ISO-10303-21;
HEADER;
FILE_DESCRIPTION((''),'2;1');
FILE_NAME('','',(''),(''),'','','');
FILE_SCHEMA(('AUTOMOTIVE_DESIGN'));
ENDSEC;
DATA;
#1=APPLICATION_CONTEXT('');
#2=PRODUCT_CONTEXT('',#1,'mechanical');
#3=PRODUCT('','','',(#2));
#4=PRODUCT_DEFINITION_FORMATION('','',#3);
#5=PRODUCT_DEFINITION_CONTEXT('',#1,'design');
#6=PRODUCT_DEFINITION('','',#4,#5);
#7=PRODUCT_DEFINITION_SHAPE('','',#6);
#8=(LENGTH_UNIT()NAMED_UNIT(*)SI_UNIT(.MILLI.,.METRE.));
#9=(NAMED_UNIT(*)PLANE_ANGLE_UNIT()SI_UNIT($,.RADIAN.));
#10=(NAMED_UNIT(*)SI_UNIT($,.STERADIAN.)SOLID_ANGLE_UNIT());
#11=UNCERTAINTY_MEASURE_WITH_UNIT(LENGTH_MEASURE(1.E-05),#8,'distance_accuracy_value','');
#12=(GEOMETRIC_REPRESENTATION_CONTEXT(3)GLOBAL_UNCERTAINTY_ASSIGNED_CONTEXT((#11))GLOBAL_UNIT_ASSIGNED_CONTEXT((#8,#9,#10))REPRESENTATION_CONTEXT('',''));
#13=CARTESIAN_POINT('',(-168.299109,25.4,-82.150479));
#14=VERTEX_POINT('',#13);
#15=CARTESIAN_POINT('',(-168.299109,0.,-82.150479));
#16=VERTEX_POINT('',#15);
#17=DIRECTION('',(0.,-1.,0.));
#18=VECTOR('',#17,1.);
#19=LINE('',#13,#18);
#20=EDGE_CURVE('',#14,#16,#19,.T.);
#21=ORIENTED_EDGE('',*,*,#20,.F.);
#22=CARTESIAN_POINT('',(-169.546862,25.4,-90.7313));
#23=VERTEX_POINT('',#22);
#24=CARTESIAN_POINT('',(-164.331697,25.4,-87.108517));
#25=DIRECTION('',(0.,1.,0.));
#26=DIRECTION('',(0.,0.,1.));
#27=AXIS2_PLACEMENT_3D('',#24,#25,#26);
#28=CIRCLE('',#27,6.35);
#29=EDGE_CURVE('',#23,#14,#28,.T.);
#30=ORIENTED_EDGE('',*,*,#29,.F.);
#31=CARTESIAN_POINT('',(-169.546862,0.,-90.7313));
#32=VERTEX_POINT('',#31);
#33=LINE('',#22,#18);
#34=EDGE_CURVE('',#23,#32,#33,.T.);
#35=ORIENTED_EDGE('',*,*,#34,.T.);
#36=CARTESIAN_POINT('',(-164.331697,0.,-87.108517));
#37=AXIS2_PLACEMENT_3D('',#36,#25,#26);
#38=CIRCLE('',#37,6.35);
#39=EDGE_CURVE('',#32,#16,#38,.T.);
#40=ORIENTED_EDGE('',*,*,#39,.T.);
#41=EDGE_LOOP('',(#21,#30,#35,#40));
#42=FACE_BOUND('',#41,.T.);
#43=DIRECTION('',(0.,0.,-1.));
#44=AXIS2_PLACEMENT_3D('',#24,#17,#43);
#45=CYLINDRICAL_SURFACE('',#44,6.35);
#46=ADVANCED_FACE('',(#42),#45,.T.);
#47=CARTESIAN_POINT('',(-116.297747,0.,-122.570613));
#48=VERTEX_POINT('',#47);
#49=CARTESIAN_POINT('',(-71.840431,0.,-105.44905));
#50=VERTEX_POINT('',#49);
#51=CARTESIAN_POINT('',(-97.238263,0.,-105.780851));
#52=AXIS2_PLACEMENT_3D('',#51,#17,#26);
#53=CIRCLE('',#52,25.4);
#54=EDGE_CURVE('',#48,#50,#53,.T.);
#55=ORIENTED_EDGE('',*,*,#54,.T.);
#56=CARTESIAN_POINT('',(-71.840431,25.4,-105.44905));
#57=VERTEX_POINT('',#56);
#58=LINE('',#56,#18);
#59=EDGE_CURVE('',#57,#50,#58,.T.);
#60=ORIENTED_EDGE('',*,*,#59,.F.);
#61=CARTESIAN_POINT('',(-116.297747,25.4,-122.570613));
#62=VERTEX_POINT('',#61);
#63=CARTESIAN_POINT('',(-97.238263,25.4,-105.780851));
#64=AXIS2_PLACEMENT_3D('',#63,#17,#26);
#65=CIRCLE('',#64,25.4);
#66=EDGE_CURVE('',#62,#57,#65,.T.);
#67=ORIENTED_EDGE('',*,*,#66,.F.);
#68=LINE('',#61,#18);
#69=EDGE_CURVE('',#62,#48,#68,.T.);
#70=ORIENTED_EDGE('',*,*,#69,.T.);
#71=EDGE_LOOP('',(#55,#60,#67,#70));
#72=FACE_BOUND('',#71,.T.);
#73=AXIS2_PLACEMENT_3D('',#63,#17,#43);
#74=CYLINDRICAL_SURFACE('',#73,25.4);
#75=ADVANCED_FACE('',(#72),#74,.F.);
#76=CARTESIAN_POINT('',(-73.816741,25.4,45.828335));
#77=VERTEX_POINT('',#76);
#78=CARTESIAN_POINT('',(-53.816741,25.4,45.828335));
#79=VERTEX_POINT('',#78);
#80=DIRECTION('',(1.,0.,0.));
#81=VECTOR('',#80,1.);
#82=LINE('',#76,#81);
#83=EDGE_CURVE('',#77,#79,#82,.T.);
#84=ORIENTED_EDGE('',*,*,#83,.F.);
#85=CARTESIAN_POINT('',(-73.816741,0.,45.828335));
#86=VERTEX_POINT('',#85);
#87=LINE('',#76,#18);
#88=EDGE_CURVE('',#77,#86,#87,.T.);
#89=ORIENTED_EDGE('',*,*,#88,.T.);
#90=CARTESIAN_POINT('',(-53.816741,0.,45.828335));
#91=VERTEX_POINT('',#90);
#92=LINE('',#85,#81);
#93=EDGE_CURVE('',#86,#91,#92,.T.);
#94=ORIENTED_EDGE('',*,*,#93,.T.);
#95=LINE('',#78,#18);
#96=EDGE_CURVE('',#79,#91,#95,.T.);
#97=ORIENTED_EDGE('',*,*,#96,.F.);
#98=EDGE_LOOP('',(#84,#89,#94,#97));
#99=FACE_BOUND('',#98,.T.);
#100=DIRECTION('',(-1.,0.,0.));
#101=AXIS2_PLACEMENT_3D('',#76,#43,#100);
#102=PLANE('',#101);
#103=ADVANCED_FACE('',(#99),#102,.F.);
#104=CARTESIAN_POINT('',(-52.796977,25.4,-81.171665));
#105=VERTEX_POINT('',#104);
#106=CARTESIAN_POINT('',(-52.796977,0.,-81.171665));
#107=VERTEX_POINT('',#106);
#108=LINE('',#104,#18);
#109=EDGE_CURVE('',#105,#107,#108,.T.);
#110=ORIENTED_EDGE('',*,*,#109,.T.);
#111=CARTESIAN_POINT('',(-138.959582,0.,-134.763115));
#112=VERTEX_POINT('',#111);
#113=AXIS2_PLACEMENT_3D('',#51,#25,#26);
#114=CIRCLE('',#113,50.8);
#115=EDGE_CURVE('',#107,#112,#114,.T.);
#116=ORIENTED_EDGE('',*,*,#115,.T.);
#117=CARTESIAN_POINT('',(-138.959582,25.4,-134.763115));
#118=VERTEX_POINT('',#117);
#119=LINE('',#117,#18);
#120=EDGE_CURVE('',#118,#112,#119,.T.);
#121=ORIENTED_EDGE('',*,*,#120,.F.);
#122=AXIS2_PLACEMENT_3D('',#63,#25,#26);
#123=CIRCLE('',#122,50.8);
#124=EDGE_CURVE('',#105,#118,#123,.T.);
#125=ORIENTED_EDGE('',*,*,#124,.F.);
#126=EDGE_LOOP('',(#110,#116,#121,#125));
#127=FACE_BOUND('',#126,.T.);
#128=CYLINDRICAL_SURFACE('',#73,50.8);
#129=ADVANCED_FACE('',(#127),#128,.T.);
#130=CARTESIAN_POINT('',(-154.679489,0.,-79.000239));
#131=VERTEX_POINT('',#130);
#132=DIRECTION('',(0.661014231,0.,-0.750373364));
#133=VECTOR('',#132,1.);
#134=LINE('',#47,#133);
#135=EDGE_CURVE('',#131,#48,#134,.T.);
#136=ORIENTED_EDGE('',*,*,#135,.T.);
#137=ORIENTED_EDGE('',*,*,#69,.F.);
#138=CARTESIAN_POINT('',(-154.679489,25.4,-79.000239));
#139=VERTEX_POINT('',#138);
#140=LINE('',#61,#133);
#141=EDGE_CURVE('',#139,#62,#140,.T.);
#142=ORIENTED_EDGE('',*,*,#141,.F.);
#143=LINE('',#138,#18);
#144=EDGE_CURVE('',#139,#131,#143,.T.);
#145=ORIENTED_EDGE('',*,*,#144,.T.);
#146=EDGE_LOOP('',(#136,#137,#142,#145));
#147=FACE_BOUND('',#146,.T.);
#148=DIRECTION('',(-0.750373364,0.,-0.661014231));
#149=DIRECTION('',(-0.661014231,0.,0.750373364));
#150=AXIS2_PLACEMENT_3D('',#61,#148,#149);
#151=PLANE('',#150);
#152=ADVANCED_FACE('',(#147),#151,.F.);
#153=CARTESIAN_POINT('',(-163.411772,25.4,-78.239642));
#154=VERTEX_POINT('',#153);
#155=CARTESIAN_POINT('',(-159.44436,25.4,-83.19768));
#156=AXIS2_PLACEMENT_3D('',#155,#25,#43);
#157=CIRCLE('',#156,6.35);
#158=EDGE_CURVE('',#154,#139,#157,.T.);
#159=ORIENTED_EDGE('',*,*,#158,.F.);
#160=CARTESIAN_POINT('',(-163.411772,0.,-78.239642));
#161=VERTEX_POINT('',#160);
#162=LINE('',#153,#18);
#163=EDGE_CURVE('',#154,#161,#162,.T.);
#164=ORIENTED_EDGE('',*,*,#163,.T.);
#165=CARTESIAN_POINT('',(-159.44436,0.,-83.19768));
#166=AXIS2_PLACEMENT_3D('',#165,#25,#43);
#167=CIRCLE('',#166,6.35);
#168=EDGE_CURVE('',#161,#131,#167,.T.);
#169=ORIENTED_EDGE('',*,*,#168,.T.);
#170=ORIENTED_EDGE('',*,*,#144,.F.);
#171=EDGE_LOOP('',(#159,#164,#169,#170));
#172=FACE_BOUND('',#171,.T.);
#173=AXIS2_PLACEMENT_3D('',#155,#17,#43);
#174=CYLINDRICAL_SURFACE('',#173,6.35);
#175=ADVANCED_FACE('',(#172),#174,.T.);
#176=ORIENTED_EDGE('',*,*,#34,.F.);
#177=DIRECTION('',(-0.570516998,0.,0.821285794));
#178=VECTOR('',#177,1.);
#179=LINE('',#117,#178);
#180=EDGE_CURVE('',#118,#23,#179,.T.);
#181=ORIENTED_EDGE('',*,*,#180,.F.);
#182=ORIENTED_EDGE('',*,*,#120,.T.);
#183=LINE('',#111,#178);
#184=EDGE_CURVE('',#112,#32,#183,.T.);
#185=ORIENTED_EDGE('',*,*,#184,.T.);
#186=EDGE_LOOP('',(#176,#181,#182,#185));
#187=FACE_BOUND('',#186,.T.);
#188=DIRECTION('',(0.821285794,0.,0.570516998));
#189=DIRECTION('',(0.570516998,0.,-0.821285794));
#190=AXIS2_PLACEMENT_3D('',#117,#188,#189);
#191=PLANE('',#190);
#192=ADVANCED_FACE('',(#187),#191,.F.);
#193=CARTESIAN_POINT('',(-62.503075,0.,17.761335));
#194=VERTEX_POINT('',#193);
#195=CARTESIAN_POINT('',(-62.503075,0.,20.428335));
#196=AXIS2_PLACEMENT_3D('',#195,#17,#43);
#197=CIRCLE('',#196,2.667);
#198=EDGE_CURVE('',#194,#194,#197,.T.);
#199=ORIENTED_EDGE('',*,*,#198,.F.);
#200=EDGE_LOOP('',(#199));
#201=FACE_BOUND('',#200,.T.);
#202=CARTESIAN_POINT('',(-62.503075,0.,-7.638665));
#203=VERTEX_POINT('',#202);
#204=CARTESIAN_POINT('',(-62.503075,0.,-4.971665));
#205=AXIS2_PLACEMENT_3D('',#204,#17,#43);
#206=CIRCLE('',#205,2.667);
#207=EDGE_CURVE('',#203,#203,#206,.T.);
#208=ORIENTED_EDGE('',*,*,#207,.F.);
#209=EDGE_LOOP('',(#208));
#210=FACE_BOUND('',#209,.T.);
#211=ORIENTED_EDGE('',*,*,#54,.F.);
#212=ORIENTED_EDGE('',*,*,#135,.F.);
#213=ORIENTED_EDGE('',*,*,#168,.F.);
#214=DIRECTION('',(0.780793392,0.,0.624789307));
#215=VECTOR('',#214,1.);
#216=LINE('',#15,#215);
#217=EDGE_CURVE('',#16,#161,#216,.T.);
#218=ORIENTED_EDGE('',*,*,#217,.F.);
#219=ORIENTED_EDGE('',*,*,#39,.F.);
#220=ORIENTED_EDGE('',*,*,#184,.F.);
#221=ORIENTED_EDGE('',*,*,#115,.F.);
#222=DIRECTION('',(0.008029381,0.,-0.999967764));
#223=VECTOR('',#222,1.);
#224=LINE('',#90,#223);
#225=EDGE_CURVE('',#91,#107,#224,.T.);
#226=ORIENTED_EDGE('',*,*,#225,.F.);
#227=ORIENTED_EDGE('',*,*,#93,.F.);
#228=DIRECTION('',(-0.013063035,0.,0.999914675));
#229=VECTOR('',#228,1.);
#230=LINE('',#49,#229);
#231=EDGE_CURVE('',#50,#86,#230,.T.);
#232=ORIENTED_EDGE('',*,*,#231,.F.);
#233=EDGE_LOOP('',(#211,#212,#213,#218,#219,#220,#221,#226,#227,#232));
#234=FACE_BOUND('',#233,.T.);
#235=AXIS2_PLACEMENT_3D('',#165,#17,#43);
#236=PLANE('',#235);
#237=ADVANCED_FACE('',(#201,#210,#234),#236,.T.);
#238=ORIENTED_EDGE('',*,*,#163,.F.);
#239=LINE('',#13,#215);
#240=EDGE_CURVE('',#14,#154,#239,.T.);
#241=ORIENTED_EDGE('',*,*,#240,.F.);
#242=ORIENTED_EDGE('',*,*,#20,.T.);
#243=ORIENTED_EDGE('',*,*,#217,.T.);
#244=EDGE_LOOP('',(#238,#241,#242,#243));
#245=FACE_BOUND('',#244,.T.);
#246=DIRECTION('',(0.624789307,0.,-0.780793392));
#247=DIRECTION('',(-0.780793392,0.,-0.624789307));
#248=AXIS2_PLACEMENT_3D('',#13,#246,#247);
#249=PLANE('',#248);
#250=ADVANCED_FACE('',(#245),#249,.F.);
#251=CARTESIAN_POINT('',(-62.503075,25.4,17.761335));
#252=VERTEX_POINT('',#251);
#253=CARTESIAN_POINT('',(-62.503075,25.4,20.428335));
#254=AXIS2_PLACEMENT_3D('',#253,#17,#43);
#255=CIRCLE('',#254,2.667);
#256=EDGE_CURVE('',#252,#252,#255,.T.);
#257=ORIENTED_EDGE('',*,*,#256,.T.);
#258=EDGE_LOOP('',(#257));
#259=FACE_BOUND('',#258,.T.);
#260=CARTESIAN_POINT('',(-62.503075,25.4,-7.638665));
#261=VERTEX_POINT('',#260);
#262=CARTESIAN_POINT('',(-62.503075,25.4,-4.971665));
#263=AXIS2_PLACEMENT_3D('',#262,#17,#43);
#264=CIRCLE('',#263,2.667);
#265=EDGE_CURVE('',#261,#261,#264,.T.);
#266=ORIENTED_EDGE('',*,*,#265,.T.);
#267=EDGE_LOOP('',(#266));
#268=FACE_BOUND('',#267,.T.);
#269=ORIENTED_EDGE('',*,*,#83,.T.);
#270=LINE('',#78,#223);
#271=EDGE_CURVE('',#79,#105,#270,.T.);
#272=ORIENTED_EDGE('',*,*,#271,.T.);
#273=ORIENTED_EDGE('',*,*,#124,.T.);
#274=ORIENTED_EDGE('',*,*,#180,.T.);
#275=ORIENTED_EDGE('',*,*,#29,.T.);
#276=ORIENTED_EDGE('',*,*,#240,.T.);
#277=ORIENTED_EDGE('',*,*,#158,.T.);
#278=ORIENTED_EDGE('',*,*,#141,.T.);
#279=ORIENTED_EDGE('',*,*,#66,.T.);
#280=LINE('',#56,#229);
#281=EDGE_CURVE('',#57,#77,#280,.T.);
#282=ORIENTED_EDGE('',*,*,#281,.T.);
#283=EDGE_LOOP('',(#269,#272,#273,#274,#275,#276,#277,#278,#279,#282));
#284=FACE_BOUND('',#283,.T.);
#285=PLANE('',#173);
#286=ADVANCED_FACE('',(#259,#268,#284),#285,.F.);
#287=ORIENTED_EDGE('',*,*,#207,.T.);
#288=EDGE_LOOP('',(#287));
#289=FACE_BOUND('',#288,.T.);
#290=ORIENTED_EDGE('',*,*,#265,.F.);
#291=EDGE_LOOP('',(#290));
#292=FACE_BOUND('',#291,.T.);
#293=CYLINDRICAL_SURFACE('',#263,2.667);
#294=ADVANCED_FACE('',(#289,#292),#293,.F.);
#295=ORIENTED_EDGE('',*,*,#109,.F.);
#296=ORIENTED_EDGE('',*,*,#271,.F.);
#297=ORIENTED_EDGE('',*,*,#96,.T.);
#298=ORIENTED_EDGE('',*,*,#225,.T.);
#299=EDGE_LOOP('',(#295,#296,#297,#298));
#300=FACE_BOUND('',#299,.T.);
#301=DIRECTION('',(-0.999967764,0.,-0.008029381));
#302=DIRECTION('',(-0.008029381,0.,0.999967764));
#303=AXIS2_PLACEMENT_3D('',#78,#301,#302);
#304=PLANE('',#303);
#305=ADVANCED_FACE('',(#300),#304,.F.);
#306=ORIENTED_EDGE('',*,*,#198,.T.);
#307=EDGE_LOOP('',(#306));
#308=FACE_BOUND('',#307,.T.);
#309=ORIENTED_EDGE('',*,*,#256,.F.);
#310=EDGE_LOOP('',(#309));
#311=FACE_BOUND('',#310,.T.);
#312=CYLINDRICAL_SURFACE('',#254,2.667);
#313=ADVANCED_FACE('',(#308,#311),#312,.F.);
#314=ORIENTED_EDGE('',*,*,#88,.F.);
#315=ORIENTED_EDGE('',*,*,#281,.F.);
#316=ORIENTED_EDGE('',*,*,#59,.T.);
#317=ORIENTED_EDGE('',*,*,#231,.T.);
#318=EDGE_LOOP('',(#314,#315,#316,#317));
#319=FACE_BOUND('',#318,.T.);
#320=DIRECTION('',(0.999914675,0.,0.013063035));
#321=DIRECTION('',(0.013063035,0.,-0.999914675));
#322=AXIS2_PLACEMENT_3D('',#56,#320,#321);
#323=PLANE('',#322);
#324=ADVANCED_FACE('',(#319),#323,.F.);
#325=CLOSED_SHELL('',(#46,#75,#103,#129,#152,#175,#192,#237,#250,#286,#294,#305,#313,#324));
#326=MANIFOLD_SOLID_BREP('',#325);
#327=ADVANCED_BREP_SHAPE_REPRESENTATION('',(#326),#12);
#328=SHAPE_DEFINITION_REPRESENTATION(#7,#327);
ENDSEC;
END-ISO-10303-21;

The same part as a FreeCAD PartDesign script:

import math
import FreeCAD as App
import Part
import Sketcher

V = App.Vector
Q = App.Units.Quantity

doc = App.newDocument("Part")
body = doc.addObject("PartDesign::Body", "Body")

sketch1 = doc.addObject("Sketcher::SketchObject", "Sketch")
body.addObject(sketch1)
sketch1.AttachmentSupport = (doc.XZ_Plane, [""])
sketch1.MapMode = "FlatFace"
sketch1.addGeometry(Part.LineSegment(V(-74, 46, 0), V(-54, 46, 0)), False)
sketch1.addGeometry(Part.LineSegment(V(-54, 46, 0), V(-53, -81, 0)), False)
sketch1.addGeometry(Part.ArcOfCircle(Part.Circle(V(-97, -106, 0), V(0, 0, 1), 51), math.radians(-145), math.radians(29)), False)
sketch1.addGeometry(Part.LineSegment(V(-139, -135, 0), V(-170, -91, 0)), False)
sketch1.addGeometry(Part.ArcOfCircle(Part.Circle(V(-164, -87, 0), V(0, 0, 1), 6), math.radians(129), math.radians(215)), False)
sketch1.addGeometry(Part.LineSegment(V(-168, -82, 0), V(-163, -78, 0)), False)
sketch1.addGeometry(Part.ArcOfCircle(Part.Circle(V(-159, -83, 0), V(0, 0, 1), 6), math.radians(41), math.radians(129)), False)
sketch1.addGeometry(Part.LineSegment(V(-155, -79, 0), V(-116, -123, 0)), False)
sketch1.addGeometry(Part.ArcOfCircle(Part.Circle(V(-97, -106, 0), V(0, 0, 1), 25), math.radians(-139), math.radians(1)), False)
sketch1.addGeometry(Part.LineSegment(V(-72, -105, 0), V(-74, 46, 0)), False)
sketch1.addConstraint(Sketcher.Constraint("Coincident", 0, 2, 1, 1))
sketch1.addConstraint(Sketcher.Constraint("Coincident", 1, 2, 2, 2))
sketch1.addConstraint(Sketcher.Constraint("Tangent", 2, 1, 3, 1))
sketch1.addConstraint(Sketcher.Constraint("Tangent", 3, 2, 4, 2))
sketch1.addConstraint(Sketcher.Constraint("Tangent", 4, 1, 5, 1))
sketch1.addConstraint(Sketcher.Constraint("Tangent", 5, 2, 6, 2))
sketch1.addConstraint(Sketcher.Constraint("Tangent", 6, 1, 7, 1))
sketch1.addConstraint(Sketcher.Constraint("Tangent", 7, 2, 8, 1))
sketch1.addConstraint(Sketcher.Constraint("Tangent", 8, 2, 9, 1))
sketch1.addConstraint(Sketcher.Constraint("Coincident", 9, 2, 0, 1))
sketch1.addConstraint(Sketcher.Constraint("Horizontal", 0))
sketch1.addConstraint(Sketcher.Constraint("Coincident", 8, 3, 2, 3))
sketch1.addConstraint(Sketcher.Constraint("Equal", 4, 6))
sketch1.addConstraint(Sketcher.Constraint("Radius", 2, Q("2 in")))
sketch1.addConstraint(Sketcher.Constraint("Radius", 8, Q("1 in")))
sketch1.addConstraint(Sketcher.Constraint("Radius", 4, Q("0.25 in")))
sketch1.addConstraint(Sketcher.Constraint("DistanceY", 1, 2, 0, 2, Q("5 in")))
sketch1.addConstraint(Sketcher.Constraint("DistanceX", 0, 1, 0, 2, 20.0))
sketch1.addConstraint(Sketcher.Constraint("DistanceY", 3, 2, -1, 1, 90.7313))
sketch1.addConstraint(Sketcher.Constraint("DistanceX", 3, 2, 2, 3, 72.308598))
sketch1.addConstraint(Sketcher.Constraint("DistanceY", 6, 3, 4, 1, 1.0472))
sketch1.addConstraint(Sketcher.Constraint("DistanceY", 8, 3, 8, 2, 0.331801))
sketch1.addConstraint(Sketcher.Constraint("Distance", 5, 6.25945))
sketch1.addConstraint(Sketcher.Constraint("DistanceY", 2, 3, -1, 1, 105.780851))
sketch1.addConstraint(Sketcher.Constraint("DistanceX", 6, 3, -1, 1, 159.44436))
sketch1.addConstraint(Sketcher.Constraint("DistanceX", 0, 2, -1, 1, 53.816741))
pad1 = doc.addObject("PartDesign::Pad", "Pad")
body.addObject(pad1)
pad1.Profile = sketch1
pad1.Length = Q("1 in")
pad1.Reversed = True

sketch2 = doc.addObject("Sketcher::SketchObject", "Sketch001")
body.addObject(sketch2)
sketch2.AttachmentSupport = (doc.XZ_Plane, [""])
sketch2.MapMode = "FlatFace"
sketch2.addGeometry(Part.Circle(V(-62.5, -5, 0), V(0, 0, 1), 2.7), False)
sketch2.addGeometry(Part.Circle(V(-62.5, 20.4, 0), V(0, 0, 1), 2.7), False)
sketch2.addConstraint(Sketcher.Constraint("Equal", 0, 1))
sketch2.addConstraint(Sketcher.Constraint("Vertical", 0, 3, 1, 3))
sketch2.addConstraint(Sketcher.Constraint("Diameter", 0, Q("0.21 in")))
sketch2.addConstraint(Sketcher.Constraint("DistanceY", 0, 3, 1, 3, Q("1 in")))
sketch2.addConstraint(Sketcher.Constraint("DistanceX", 0, 3, -1, 1, 62.503075))
sketch2.addConstraint(Sketcher.Constraint("DistanceY", 0, 3, -1, 1, 4.971665))
pocket1 = doc.addObject("PartDesign::Pocket", "Pocket")
body.addObject(pocket1)
pocket1.Profile = sketch2
pocket1.Length = Q("1 in")

doc.recompute()
